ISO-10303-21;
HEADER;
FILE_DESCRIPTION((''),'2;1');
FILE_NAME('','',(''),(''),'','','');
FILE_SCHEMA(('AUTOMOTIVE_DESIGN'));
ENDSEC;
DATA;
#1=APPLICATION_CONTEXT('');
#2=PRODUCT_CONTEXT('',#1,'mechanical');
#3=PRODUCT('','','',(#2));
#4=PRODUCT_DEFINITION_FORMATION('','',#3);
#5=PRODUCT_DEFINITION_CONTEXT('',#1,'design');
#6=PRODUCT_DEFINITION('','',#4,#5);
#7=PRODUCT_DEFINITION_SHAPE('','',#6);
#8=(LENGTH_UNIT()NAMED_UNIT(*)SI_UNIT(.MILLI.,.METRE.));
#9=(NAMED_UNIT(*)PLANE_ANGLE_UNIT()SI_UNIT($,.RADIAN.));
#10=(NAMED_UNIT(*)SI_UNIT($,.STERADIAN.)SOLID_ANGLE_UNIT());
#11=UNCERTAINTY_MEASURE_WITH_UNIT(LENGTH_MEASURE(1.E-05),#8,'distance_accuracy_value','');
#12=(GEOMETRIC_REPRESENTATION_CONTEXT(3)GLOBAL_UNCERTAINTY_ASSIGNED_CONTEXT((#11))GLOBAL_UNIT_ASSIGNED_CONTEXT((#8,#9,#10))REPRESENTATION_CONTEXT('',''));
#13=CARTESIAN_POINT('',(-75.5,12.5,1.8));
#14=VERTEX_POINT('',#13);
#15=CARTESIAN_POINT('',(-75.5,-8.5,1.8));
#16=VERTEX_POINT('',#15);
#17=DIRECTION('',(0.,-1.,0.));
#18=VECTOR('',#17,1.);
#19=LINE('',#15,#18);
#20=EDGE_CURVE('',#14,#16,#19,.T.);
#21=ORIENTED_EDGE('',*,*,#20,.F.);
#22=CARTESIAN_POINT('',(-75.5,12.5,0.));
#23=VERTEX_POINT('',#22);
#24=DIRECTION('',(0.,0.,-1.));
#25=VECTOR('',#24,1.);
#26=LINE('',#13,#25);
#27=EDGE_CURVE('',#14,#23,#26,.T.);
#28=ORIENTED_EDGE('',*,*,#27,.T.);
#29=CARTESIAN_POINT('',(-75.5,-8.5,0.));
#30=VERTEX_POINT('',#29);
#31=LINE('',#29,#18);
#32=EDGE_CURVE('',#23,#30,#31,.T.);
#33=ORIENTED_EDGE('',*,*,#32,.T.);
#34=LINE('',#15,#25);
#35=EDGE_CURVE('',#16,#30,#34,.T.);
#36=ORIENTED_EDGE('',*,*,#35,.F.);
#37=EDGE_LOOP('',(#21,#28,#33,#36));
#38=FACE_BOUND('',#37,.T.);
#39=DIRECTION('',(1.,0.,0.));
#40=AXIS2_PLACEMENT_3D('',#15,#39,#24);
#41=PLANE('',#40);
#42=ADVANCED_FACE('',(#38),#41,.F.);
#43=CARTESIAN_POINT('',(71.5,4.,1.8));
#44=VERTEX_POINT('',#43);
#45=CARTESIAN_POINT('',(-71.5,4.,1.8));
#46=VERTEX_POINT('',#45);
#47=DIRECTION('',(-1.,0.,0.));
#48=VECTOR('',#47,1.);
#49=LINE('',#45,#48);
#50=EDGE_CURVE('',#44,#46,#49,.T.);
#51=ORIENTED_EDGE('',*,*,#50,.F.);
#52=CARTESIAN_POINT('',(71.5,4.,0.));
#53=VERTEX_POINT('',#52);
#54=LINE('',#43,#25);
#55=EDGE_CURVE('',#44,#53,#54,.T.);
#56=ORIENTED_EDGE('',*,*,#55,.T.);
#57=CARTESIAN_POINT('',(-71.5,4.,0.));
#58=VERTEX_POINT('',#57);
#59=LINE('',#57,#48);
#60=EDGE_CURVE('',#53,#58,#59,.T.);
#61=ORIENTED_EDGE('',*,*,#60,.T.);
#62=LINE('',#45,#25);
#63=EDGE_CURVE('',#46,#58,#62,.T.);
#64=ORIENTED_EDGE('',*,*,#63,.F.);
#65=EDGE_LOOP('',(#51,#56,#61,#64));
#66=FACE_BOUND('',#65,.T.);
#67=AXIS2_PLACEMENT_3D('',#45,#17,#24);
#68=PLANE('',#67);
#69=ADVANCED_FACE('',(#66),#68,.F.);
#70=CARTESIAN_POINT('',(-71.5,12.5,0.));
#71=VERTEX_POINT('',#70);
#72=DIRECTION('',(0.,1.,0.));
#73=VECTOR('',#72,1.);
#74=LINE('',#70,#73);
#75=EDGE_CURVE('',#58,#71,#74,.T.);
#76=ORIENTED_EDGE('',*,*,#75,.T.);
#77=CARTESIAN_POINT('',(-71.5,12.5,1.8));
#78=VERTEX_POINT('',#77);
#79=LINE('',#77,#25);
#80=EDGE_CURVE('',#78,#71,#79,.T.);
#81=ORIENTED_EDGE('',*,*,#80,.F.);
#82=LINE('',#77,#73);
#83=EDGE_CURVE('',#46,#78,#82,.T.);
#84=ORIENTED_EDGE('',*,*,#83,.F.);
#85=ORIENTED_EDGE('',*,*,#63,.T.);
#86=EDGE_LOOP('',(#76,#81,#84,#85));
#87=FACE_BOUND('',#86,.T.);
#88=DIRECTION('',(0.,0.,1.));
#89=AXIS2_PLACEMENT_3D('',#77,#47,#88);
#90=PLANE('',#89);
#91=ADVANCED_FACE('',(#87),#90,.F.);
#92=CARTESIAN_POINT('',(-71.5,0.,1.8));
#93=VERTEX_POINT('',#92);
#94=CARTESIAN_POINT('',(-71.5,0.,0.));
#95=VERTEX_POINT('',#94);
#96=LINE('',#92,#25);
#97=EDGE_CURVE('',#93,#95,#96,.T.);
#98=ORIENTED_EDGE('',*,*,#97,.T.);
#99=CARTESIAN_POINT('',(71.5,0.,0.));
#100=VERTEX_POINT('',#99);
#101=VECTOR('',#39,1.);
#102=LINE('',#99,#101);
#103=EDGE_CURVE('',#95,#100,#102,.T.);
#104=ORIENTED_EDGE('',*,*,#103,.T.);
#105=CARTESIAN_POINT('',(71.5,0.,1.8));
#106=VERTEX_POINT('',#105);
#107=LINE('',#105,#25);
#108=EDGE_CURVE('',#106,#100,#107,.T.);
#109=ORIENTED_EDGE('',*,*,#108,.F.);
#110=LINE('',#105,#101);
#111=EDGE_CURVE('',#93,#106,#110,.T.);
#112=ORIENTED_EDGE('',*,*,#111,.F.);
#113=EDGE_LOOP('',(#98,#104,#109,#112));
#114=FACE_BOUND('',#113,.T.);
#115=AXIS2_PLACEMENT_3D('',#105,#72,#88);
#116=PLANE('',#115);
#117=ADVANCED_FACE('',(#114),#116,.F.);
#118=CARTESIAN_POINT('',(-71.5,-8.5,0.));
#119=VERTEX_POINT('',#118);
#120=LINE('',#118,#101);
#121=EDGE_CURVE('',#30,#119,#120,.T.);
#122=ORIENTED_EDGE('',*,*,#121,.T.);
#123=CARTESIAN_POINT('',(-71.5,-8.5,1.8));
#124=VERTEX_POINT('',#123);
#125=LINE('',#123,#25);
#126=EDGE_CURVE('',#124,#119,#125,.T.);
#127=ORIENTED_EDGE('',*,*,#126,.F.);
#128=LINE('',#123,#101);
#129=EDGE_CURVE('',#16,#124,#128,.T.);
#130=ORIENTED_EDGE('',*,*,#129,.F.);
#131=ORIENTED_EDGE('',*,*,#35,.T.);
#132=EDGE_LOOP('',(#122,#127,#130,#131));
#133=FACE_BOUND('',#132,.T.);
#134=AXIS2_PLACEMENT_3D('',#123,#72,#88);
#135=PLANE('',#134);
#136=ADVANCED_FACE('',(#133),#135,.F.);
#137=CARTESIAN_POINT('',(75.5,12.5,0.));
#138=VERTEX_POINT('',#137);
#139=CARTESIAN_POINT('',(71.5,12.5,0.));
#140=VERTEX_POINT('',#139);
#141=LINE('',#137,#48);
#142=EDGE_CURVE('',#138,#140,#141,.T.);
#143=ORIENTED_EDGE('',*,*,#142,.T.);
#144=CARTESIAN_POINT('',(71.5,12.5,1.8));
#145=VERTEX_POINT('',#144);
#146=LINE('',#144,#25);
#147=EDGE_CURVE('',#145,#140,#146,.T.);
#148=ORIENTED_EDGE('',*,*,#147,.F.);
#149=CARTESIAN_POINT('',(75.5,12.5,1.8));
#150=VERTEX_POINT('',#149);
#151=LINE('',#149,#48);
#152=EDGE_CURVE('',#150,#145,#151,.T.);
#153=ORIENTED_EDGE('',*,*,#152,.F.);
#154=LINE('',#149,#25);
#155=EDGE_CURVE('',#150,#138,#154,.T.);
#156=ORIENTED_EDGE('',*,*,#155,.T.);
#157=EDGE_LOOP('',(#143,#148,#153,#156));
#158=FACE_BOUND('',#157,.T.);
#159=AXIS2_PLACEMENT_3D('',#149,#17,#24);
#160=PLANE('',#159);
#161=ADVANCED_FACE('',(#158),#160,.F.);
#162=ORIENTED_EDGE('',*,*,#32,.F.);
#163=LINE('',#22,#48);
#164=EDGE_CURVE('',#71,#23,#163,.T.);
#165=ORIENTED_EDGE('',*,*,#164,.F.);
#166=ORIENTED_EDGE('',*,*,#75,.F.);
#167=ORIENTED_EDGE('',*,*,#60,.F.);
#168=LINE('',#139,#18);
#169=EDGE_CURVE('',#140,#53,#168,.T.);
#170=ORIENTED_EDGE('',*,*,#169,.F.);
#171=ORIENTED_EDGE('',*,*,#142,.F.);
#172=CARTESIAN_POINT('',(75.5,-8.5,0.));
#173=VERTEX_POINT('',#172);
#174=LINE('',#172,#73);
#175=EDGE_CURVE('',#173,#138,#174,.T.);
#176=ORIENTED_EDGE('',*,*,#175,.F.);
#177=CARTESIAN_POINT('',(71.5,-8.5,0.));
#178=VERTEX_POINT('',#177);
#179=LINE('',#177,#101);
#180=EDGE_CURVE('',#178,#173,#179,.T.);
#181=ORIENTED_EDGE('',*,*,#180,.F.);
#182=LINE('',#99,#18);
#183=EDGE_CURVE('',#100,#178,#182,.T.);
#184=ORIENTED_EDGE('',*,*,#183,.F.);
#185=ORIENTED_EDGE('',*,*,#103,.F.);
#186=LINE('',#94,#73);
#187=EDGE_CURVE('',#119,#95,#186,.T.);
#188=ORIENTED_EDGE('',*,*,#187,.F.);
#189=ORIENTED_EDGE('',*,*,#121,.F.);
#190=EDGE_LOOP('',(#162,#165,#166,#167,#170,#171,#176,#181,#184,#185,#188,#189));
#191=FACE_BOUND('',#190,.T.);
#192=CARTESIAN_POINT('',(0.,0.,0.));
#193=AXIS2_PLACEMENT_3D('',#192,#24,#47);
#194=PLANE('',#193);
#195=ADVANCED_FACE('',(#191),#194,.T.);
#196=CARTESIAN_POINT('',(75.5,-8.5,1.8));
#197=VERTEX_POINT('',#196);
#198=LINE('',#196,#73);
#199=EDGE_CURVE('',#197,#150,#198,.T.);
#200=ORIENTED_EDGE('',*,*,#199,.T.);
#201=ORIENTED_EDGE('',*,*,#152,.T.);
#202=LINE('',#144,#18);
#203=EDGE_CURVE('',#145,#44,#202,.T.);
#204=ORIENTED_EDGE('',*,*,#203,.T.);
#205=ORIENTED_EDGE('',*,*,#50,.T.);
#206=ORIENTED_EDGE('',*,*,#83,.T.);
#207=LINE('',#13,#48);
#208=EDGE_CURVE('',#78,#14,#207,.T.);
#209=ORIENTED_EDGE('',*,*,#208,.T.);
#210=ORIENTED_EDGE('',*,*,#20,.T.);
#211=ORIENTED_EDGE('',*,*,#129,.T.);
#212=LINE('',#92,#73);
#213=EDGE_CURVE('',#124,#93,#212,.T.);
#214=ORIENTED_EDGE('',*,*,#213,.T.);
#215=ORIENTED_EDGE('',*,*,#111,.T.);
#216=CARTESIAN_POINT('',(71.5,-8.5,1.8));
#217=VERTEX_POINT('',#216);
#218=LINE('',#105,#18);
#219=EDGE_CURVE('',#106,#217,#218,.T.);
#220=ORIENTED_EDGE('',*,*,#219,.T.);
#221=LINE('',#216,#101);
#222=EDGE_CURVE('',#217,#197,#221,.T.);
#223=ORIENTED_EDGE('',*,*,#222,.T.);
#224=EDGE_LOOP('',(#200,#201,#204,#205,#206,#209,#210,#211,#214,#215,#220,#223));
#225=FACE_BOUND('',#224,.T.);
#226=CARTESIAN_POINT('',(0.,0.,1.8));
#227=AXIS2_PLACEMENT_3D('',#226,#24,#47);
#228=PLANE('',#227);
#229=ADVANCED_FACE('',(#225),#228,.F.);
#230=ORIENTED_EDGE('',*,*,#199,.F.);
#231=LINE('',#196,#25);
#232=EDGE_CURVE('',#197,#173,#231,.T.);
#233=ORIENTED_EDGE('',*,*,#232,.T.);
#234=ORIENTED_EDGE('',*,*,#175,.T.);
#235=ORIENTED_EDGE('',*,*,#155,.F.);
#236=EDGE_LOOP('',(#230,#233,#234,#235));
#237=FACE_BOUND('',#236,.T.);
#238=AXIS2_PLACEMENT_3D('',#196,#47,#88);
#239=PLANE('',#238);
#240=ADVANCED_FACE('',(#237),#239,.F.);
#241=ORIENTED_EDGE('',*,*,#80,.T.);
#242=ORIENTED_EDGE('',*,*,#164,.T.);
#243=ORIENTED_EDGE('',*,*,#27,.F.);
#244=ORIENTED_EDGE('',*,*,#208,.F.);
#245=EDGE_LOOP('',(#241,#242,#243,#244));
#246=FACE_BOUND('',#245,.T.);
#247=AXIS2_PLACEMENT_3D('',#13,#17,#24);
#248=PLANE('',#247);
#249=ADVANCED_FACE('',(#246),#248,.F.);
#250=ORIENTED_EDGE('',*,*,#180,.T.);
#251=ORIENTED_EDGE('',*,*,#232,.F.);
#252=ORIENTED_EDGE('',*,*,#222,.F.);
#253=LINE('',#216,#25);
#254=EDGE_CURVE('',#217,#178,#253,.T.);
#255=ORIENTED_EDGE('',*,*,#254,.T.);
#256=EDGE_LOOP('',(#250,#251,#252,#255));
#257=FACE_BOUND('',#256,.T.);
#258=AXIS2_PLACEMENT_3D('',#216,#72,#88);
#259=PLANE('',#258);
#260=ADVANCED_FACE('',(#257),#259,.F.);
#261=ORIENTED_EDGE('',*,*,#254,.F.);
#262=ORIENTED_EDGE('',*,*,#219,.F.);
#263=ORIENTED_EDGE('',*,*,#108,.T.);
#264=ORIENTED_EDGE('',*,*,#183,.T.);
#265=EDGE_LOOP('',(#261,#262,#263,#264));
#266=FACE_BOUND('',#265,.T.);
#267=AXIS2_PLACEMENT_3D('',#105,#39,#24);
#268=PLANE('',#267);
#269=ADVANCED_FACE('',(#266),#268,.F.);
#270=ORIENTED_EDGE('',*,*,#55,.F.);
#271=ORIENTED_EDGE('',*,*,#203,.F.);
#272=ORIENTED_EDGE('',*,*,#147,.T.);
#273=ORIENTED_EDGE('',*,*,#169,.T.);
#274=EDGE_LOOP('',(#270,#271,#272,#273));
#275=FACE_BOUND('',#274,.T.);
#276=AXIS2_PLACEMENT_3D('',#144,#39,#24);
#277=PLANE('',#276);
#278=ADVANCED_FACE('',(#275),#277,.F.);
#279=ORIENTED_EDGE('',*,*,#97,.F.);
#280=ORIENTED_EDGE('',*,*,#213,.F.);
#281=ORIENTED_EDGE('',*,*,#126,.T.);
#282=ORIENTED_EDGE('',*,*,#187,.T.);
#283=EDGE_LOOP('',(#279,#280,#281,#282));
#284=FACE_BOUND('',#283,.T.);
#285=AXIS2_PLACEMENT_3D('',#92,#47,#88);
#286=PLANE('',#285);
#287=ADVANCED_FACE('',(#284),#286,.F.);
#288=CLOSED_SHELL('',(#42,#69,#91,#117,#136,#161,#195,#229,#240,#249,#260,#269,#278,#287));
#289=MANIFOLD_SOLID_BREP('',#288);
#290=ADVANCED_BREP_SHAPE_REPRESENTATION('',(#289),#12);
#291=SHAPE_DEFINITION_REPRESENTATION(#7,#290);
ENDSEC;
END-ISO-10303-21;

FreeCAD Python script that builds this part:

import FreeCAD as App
import Part
import Sketcher
Q = App.Units.Quantity

doc = App.newDocument("Part")
body = doc.addObject("PartDesign::Body", "Body")

sketch1 = doc.addObject("Sketcher::SketchObject", "Sketch")
body.addObject(sketch1)
sketch1.AttachmentSupport = (doc.XY_Plane, [""])
sketch1.MapMode = "FlatFace"
sketch1.addGeometry(Part.LineSegment(App.Vector(-71.5, 0, 0), App.Vector(71.5, 0, 0)), False)
sketch1.addGeometry(Part.LineSegment(App.Vector(71.5, 0, 0), App.Vector(71.5, -8.5, 0)), False)
sketch1.addGeometry(Part.LineSegment(App.Vector(71.5, -8.5, 0), App.Vector(75.5, -8.5, 0)), False)
sketch1.addGeometry(Part.LineSegment(App.Vector(75.5, -8.5, 0), App.Vector(75.5, 12.5, 0)), False)
sketch1.addGeometry(Part.LineSegment(App.Vector(75.5, 12.5, 0), App.Vector(71.5, 12.5, 0)), False)
sketch1.addGeometry(Part.LineSegment(App.Vector(71.5, 12.5, 0), App.Vector(71.5, 4, 0)), False)
sketch1.addGeometry(Part.LineSegment(App.Vector(71.5, 4, 0), App.Vector(-71.5, 4, 0)), False)
sketch1.addGeometry(Part.LineSegment(App.Vector(-71.5, 4, 0), App.Vector(-71.5, 12.5, 0)), False)
sketch1.addGeometry(Part.LineSegment(App.Vector(-71.5, 12.5, 0), App.Vector(-75.5, 12.5, 0)), False)
sketch1.addGeometry(Part.LineSegment(App.Vector(-75.5, 12.5, 0), App.Vector(-75.5, -8.5, 0)), False)
sketch1.addGeometry(Part.LineSegment(App.Vector(-75.5, -8.5, 0), App.Vector(-71.5, -8.5, 0)), False)
sketch1.addGeometry(Part.LineSegment(App.Vector(-71.5, -8.5, 0), App.Vector(-71.5, 0, 0)), False)
sketch1.addConstraint(Sketcher.Constraint("Coincident", 0, 2, 1, 1))
sketch1.addConstraint(Sketcher.Constraint("Coincident", 1, 2, 2, 1))
sketch1.addConstraint(Sketcher.Constraint("Coincident", 2, 2, 3, 1))
sketch1.addConstraint(Sketcher.Constraint("Coincident", 3, 2, 4, 1))
sketch1.addConstraint(Sketcher.Constraint("Coincident", 4, 2, 5, 1))
sketch1.addConstraint(Sketcher.Constraint("Coincident", 5, 2, 6, 1))
sketch1.addConstraint(Sketcher.Constraint("Coincident", 6, 2, 7, 1))
sketch1.addConstraint(Sketcher.Constraint("Coincident", 7, 2, 8, 1))
sketch1.addConstraint(Sketcher.Constraint("Coincident", 8, 2, 9, 1))
sketch1.addConstraint(Sketcher.Constraint("Coincident", 9, 2, 10, 1))
sketch1.addConstraint(Sketcher.Constraint("Coincident", 10, 2, 11, 1))
sketch1.addConstraint(Sketcher.Constraint("Coincident", 11, 2, 0, 1))
sketch1.addConstraint(Sketcher.Constraint("Horizontal", 0))
sketch1.addConstraint(Sketcher.Constraint("Vertical", 1))
sketch1.addConstraint(Sketcher.Constraint("Horizontal", 2))
sketch1.addConstraint(Sketcher.Constraint("Vertical", 3))
sketch1.addConstraint(Sketcher.Constraint("Horizontal", 4))
sketch1.addConstraint(Sketcher.Constraint("Vertical", 5))
sketch1.addConstraint(Sketcher.Constraint("Horizontal", 6))
sketch1.addConstraint(Sketcher.Constraint("Vertical", 7))
sketch1.addConstraint(Sketcher.Constraint("Horizontal", 8))
sketch1.addConstraint(Sketcher.Constraint("Vertical", 9))
sketch1.addConstraint(Sketcher.Constraint("Horizontal", 10))
sketch1.addConstraint(Sketcher.Constraint("Vertical", 11))
sketch1.addConstraint(Sketcher.Constraint("Symmetric", 0, 2, 11, 2, -1, 1))
sketch1.addConstraint(Sketcher.Constraint("Symmetric", 4, 2, 7, 2, -2))
sketch1.addConstraint(Sketcher.Constraint("Symmetric", 2, 2, 9, 2, -2))
sketch1.addConstraint(Sketcher.Constraint("Vertical", 1, 2, 4, 2))
sketch1.addConstraint(Sketcher.Constraint("Equal", 1, 5))
sketch1.addConstraint(Sketcher.Constraint("DistanceX", 0, 1, 0, 2, Q("143 mm")))
sketch1.addConstraint(Sketcher.Constraint("DistanceX", 2, 1, 2, 2, Q("4 mm")))
sketch1.addConstraint(Sketcher.Constraint("DistanceY", 3, 1, 3, 2, Q("21 mm")))
sketch1.addConstraint(Sketcher.Constraint("DistanceY", 1, 2, 1, 1, Q("8.5 mm")))
pad1 = doc.addObject("PartDesign::Pad", "Pad")
body.addObject(pad1)
pad1.Profile = sketch1
pad1.Length = 1.8

doc.recompute()
